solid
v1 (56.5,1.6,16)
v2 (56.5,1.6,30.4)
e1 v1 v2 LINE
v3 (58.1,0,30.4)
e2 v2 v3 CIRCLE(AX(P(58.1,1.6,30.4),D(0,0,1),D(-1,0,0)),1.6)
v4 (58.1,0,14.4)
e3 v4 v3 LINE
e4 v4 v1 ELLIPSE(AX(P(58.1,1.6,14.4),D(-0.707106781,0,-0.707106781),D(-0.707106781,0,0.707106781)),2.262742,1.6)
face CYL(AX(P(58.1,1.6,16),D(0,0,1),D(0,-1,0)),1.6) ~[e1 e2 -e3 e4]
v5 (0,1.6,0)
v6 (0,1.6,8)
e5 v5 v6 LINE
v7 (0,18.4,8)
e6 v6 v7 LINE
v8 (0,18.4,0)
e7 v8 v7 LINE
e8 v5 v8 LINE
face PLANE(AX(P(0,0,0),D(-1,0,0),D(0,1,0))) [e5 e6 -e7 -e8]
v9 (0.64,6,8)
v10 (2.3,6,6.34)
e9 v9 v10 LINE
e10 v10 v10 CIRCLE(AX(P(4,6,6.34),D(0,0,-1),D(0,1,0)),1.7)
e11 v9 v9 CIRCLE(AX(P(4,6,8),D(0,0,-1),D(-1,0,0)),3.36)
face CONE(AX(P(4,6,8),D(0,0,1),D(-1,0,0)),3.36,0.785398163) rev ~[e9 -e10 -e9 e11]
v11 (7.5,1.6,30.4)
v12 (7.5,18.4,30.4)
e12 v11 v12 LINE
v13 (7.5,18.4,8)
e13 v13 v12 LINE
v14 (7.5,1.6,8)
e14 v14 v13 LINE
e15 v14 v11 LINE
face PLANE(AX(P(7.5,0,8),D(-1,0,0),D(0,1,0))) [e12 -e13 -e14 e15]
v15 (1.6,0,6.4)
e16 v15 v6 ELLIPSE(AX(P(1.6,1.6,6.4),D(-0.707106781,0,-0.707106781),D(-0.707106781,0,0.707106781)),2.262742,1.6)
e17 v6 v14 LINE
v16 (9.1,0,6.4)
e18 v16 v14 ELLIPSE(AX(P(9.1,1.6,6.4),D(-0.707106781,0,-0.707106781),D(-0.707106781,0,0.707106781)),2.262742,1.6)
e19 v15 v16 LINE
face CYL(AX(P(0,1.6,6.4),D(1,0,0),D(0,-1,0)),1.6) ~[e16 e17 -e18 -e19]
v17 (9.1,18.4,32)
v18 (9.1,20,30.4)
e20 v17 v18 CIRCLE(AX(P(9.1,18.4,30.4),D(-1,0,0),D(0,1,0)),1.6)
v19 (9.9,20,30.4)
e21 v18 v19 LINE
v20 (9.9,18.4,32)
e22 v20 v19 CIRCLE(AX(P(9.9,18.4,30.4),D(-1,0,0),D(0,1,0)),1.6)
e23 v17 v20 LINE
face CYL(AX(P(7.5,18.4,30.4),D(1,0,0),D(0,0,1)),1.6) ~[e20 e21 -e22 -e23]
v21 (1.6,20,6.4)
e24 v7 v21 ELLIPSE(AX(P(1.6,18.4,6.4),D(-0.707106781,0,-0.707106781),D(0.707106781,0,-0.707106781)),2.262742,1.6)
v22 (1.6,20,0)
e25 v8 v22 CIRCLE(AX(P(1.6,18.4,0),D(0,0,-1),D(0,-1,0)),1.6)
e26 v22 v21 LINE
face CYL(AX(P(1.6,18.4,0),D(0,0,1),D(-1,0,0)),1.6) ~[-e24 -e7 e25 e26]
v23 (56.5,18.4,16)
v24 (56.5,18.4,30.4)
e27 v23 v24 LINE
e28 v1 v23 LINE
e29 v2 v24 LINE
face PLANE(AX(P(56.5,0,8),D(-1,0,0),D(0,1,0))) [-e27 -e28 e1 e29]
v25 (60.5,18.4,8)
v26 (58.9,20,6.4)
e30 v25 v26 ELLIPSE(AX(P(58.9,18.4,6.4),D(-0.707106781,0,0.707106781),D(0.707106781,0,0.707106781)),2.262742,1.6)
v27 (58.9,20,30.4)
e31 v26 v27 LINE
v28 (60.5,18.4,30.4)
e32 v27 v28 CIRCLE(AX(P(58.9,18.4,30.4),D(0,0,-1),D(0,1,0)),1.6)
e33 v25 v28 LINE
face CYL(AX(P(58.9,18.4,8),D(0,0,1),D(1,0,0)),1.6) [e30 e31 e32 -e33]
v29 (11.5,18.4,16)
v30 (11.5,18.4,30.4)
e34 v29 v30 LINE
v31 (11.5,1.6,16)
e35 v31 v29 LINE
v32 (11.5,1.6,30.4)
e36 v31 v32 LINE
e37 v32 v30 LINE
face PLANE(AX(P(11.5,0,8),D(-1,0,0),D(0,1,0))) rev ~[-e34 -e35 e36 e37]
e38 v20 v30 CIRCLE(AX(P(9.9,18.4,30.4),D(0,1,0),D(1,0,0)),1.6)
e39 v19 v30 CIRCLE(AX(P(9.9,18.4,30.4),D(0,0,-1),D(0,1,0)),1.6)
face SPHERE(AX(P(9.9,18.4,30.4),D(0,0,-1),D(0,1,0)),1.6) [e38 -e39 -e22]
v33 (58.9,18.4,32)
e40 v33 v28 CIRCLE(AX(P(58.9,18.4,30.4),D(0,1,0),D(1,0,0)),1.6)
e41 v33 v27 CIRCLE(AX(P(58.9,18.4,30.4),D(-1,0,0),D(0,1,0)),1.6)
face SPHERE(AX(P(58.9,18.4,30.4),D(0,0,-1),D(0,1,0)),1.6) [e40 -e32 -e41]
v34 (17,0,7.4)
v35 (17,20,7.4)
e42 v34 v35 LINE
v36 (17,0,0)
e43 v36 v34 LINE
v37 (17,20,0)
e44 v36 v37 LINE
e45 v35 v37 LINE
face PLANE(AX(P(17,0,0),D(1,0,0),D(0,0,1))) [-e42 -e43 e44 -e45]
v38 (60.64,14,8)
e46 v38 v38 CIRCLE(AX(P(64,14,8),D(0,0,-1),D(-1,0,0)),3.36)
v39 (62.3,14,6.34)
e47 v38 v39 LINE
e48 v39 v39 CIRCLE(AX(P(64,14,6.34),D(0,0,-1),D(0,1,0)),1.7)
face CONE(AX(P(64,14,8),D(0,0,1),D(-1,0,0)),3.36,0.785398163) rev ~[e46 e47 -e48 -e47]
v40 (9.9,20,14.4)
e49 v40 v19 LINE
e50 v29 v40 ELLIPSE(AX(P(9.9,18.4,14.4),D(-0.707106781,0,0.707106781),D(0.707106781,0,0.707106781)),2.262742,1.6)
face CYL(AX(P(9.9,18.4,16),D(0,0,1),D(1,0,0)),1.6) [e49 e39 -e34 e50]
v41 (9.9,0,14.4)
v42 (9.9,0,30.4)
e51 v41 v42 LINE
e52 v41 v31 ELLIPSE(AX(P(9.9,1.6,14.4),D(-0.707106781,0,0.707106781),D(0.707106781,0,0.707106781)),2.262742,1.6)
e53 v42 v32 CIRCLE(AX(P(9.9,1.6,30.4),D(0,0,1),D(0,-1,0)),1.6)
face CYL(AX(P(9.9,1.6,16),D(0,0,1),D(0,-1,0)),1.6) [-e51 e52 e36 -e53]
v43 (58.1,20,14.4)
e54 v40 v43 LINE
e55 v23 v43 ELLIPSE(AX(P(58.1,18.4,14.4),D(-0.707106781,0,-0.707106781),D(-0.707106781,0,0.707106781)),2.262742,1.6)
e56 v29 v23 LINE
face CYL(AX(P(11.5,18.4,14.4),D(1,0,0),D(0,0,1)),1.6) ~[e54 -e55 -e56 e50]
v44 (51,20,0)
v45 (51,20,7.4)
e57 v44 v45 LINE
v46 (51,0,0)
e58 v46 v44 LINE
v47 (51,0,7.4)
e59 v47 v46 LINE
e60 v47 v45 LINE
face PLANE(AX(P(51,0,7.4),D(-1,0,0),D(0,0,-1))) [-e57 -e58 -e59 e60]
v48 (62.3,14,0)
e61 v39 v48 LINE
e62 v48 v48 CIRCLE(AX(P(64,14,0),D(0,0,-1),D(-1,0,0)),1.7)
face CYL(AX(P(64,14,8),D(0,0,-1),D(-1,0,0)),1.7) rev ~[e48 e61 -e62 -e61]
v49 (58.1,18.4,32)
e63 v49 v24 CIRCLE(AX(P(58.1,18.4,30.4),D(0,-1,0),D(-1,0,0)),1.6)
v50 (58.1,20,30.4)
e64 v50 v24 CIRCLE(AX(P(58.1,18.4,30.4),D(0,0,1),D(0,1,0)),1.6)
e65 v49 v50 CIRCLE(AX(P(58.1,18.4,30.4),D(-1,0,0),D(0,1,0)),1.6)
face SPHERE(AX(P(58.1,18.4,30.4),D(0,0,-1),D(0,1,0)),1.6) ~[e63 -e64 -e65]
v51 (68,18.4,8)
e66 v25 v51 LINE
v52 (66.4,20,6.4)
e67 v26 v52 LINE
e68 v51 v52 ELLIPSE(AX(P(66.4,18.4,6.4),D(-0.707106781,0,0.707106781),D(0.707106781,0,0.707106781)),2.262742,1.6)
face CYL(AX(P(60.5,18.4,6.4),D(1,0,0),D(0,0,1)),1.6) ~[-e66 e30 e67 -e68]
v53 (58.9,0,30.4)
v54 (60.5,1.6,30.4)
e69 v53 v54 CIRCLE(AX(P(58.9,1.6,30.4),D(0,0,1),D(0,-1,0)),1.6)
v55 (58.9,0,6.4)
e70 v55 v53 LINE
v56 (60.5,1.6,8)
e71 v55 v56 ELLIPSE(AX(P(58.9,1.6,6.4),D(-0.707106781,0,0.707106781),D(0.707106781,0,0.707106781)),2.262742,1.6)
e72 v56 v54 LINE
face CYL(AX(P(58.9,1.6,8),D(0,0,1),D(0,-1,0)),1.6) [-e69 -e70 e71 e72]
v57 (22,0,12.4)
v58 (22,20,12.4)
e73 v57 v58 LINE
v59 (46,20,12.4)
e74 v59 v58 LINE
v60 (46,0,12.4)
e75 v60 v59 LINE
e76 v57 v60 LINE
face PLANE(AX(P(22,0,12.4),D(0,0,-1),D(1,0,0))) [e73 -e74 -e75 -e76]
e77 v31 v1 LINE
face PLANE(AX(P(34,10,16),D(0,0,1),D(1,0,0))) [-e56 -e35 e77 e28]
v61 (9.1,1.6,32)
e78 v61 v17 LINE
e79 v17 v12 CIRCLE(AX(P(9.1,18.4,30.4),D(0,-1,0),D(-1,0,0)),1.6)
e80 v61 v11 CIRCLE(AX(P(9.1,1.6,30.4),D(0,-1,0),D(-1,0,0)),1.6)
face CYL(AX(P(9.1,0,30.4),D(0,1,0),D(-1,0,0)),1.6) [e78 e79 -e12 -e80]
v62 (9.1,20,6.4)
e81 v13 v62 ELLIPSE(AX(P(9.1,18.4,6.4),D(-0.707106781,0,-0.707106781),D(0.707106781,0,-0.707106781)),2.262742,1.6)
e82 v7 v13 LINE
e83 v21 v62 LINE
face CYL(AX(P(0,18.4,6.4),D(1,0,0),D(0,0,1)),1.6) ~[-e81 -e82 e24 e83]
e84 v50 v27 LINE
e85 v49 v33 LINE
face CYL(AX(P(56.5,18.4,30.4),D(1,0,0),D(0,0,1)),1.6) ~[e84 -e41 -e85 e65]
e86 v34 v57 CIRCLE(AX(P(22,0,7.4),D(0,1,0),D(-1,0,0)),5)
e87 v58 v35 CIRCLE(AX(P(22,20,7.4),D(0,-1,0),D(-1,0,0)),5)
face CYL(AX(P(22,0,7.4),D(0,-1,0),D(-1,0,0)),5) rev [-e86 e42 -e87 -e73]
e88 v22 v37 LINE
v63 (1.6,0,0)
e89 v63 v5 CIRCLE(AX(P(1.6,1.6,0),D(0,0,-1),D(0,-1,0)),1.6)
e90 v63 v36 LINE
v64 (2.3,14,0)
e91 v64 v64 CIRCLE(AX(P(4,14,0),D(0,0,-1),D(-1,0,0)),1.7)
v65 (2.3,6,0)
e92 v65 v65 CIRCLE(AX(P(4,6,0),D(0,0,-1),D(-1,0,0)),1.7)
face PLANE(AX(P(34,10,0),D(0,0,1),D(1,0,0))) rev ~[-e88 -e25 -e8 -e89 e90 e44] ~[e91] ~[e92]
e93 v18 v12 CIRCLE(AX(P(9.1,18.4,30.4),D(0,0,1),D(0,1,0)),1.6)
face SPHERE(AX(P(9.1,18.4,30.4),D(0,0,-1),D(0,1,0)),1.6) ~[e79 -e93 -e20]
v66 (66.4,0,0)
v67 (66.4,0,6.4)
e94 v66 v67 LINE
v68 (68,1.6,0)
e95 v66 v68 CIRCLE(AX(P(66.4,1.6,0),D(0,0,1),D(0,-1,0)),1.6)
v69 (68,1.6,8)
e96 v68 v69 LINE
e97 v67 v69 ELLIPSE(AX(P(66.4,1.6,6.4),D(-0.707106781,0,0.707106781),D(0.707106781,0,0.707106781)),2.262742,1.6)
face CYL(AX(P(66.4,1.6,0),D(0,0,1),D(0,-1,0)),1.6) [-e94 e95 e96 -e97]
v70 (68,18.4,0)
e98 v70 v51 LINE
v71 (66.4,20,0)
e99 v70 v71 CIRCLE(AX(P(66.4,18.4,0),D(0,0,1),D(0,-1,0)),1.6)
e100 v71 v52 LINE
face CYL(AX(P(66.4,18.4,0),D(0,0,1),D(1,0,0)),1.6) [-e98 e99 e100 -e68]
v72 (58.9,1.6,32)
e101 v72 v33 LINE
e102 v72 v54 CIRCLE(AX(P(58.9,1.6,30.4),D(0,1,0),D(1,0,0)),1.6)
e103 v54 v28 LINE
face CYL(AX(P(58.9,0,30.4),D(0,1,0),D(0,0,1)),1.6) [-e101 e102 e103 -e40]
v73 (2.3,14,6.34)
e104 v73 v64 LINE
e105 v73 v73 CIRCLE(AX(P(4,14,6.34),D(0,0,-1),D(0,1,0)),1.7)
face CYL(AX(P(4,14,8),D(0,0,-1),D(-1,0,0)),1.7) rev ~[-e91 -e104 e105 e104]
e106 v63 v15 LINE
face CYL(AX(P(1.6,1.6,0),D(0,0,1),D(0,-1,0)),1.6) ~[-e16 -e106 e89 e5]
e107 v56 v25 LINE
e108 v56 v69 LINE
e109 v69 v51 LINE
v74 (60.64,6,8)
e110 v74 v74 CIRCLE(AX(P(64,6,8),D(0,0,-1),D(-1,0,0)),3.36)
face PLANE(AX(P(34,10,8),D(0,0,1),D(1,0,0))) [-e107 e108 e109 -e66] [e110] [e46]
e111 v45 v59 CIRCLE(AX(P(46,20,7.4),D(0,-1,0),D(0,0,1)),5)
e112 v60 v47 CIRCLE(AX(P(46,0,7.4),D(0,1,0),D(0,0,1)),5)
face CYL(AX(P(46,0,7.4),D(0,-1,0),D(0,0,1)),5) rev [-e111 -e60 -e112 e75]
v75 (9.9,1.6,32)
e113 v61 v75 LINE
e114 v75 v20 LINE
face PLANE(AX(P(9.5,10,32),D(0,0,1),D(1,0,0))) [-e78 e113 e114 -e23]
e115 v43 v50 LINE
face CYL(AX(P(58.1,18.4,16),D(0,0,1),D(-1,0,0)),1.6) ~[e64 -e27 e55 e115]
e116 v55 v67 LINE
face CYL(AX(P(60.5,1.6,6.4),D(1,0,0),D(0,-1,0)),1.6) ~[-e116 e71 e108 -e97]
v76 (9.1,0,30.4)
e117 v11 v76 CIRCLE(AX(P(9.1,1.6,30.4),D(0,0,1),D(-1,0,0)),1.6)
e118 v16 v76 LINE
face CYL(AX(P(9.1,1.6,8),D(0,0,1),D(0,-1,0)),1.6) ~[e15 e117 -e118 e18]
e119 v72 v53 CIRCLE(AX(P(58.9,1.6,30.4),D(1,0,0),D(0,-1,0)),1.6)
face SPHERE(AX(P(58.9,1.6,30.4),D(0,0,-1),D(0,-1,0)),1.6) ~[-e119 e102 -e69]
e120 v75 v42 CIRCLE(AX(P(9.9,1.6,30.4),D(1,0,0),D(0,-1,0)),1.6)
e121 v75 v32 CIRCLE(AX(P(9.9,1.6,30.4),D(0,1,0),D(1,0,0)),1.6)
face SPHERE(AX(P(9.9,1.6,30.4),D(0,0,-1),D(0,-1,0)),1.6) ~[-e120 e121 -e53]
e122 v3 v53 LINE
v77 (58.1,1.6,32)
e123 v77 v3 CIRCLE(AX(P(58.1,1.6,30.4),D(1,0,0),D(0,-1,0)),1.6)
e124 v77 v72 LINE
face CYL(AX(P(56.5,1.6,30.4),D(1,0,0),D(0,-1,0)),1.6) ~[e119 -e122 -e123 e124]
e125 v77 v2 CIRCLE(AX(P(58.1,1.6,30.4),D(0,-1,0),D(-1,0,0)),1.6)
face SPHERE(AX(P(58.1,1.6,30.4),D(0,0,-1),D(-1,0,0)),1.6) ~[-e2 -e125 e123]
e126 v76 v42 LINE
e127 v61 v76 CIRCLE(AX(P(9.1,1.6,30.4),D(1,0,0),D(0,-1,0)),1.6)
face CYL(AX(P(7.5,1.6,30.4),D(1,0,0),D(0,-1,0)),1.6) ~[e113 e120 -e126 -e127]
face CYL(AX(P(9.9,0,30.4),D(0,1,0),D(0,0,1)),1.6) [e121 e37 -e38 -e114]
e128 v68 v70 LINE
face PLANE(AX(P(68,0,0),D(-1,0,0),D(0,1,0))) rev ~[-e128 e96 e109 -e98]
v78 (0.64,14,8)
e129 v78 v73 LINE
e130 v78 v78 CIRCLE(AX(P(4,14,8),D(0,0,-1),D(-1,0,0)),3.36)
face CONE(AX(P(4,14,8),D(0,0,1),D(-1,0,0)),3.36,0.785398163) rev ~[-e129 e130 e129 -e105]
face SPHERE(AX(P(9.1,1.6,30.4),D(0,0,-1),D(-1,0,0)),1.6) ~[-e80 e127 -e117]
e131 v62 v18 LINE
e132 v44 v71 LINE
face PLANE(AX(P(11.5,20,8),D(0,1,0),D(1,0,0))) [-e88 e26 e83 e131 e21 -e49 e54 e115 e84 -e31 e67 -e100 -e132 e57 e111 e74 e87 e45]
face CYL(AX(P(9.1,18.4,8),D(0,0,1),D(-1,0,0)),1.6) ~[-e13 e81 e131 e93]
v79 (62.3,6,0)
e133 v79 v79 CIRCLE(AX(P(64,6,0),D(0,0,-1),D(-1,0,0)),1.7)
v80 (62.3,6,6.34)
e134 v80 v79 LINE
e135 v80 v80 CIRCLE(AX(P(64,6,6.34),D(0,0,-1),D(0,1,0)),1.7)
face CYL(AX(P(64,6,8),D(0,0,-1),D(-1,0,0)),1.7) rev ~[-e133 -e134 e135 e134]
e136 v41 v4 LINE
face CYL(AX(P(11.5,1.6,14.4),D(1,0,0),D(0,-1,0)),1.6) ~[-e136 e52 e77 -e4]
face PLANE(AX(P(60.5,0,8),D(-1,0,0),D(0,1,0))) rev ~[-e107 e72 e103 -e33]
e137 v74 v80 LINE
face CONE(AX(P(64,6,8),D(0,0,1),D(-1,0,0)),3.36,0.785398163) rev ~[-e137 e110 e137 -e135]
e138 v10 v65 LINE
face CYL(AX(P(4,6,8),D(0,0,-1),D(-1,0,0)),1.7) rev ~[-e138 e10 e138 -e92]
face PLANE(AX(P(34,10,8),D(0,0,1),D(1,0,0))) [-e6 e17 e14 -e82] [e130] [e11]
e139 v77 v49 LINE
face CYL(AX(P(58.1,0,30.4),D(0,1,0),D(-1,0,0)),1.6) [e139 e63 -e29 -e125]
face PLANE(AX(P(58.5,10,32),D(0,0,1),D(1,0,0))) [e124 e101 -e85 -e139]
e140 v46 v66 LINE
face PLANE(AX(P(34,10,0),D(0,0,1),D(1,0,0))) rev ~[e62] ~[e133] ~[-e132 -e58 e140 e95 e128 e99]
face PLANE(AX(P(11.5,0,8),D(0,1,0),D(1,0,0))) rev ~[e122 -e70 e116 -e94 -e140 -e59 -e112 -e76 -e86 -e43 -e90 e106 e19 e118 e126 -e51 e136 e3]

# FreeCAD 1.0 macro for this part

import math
import FreeCAD as App
import Part
import Sketcher

V = App.Vector
Q = App.Units.Quantity


def edges_at(feature, points):
    """Names of the edges that pass closest to the given points."""
    edges = feature.Shape.Edges
    near = lambda p: min(range(len(edges)), key=lambda i: edges[i].distToShape(Part.Vertex(*p))[0])
    return sorted({f"Edge{near(p) + 1}" for p in points})

doc = App.newDocument("Part")
params = doc.addObject("Spreadsheet::Sheet", "Params")
for row, (alias, value) in enumerate([
    ("sketch1_width", "68 mm"),
    ("sketch1_height", "20 mm"),
    ("pad1_length", "8 mm"),
    ("sketch2_diameter", "3.4 mm"),
    ("hole_diameter", "3.4 mm"),
    ("hole_csink_diameter", "6.72 mm"),
    ("sketch3_width", "4 mm"),
    ("sketch3_height", "20 mm"),
    ("pad2_length", "24 mm"),
    ("sketch4_width", "45 mm"),
    ("sketch4_height", "20 mm"),
    ("pad3_length", "8 mm"),
    ("fillet_radius", "1.6 mm"),
    ("sketch5_radius", "5 mm"),
    ("sketch5_width", "34 mm"),
    ("sketch5_height", "7.4 mm"),
], start=1):
    params.set(f"A{row}", alias)
    params.set(f"B{row}", "=" + value)
    params.setAlias(f"B{row}", alias)

body = doc.addObject("PartDesign::Body", "Body")

sketch1 = body.newObject("Sketcher::SketchObject", "Sketch")
sketch1.AttachmentSupport = (doc.getObject("XY_Plane"), [""])
sketch1.MapMode = "FlatFace"
sketch1.addGeometry([
    Part.LineSegment(V(0, 20, 0), V(0, 0, 0)),
    Part.LineSegment(V(0, 0, 0), V(68, 0, 0)),
    Part.LineSegment(V(68, 0, 0), V(68, 20, 0)),
    Part.LineSegment(V(68, 20, 0), V(0, 20, 0)),
], False)
sketch1.addConstraint([
    Sketcher.Constraint("Coincident", 0, 2, 1, 1),
    Sketcher.Constraint("Coincident", 1, 2, 2, 1),
    Sketcher.Constraint("Coincident", 2, 2, 3, 1),
    Sketcher.Constraint("Coincident", 3, 2, 0, 1),
    Sketcher.Constraint("Vertical", 0),
    Sketcher.Constraint("Horizontal", 1),
    Sketcher.Constraint("Vertical", 2),
    Sketcher.Constraint("Horizontal", 3),
    Sketcher.Constraint("Coincident", 0, 2, -1, 1),
    Sketcher.Constraint("DistanceX", 1, 1, 1, 2, Q("68 mm")),
    Sketcher.Constraint("DistanceY", 0, 2, 0, 1, Q("20 mm")),
])
sketch1.setExpression("Constraints[9]", "Params.sketch1_width")
sketch1.setExpression("Constraints[10]", "Params.sketch1_height")
pad1 = body.newObject("PartDesign::Pad", "Pad")
pad1.Profile = sketch1
pad1.setExpression("Length", "Params.pad1_length")

sketch2 = body.newObject("Sketcher::SketchObject", "Sketch001")
sketch2.AttachmentSupport = (doc.getObject("XY_Plane"), [""])
sketch2.MapMode = "FlatFace"
sketch2.AttachmentOffset = App.Placement(V(0, 0, 8), App.Rotation())
sketch2.addGeometry([
    Part.Circle(V(4, 14, 0), V(0, 0, 1), 1.7),
    Part.Circle(V(4, 6, 0), V(0, 0, 1), 1.7),
    Part.Circle(V(64, 14, 0), V(0, 0, 1), 1.7),
    Part.Circle(V(64, 6, 0), V(0, 0, 1), 1.7),
], False)
sketch2.addConstraint([
    Sketcher.Constraint("Equal", 0, 1),
    Sketcher.Constraint("Equal", 1, 2),
    Sketcher.Constraint("Equal", 2, 3),
    Sketcher.Constraint("Horizontal", 0, 3, 2, 3),
    Sketcher.Constraint("Horizontal", 1, 3, 3, 3),
    Sketcher.Constraint("Vertical", 0, 3, 1, 3),
    Sketcher.Constraint("Vertical", 2, 3, 3, 3),
    Sketcher.Constraint("Diameter", 0, Q("3.4 mm")),
    Sketcher.Constraint("DistanceX", -1, 1, 0, 3, Q("4 mm")),
    Sketcher.Constraint("DistanceY", -1, 1, 0, 3, Q("14 mm")),
    Sketcher.Constraint("DistanceY", -1, 1, 1, 3, Q("6 mm")),
    Sketcher.Constraint("DistanceX", -1, 1, 2, 3, Q("64 mm")),
])
sketch2.setExpression("Constraints[7]", "Params.sketch2_diameter")
doc.recompute()
hole = body.newObject("PartDesign::Hole", "Hole")
hole.Profile = sketch2
hole.ThreadType = "None"
hole.setExpression("Diameter", "Params.hole_diameter")
hole.DepthType = "ThroughAll"
hole.HoleCutType = "Countersink"
hole.setExpression("HoleCutDiameter", "Params.hole_csink_diameter")
hole.HoleCutCountersinkAngle = 90

sketch3 = body.newObject("Sketcher::SketchObject", "Sketch002")
sketch3.AttachmentSupport = (doc.getObject("XY_Plane"), [""])
sketch3.MapMode = "FlatFace"
sketch3.AttachmentOffset = App.Placement(V(0, 0, 8), App.Rotation())
sketch3.addGeometry([
    Part.LineSegment(V(7.5, 20, 0), V(7.5, 0, 0)),
    Part.LineSegment(V(7.5, 0, 0), V(11.5, 0, 0)),
    Part.LineSegment(V(11.5, 0, 0), V(11.5, 20, 0)),
    Part.LineSegment(V(11.5, 20, 0), V(7.5, 20, 0)),
    Part.LineSegment(V(56.5, 20, 0), V(56.5, 0, 0)),
    Part.LineSegment(V(56.5, 0, 0), V(60.5, 0, 0)),
    Part.LineSegment(V(60.5, 0, 0), V(60.5, 20, 0)),
    Part.LineSegment(V(60.5, 20, 0), V(56.5, 20, 0)),
], False)
sketch3.addConstraint([
    Sketcher.Constraint("Coincident", 0, 2, 1, 1),
    Sketcher.Constraint("Coincident", 1, 2, 2, 1),
    Sketcher.Constraint("Coincident", 2, 2, 3, 1),
    Sketcher.Constraint("Coincident", 3, 2, 0, 1),
    Sketcher.Constraint("Coincident", 4, 2, 5, 1),
    Sketcher.Constraint("Coincident", 5, 2, 6, 1),
    Sketcher.Constraint("Coincident", 6, 2, 7, 1),
    Sketcher.Constraint("Coincident", 7, 2, 4, 1),
    Sketcher.Constraint("Vertical", 0),
    Sketcher.Constraint("Horizontal", 1),
    Sketcher.Constraint("Vertical", 2),
    Sketcher.Constraint("Horizontal", 3),
    Sketcher.Constraint("Vertical", 4),
    Sketcher.Constraint("Horizontal", 5),
    Sketcher.Constraint("Vertical", 6),
    Sketcher.Constraint("Horizontal", 7),
    Sketcher.Constraint("PointOnObject", 0, 2, -1),
    Sketcher.Constraint("PointOnObject", 4, 2, -1),
    Sketcher.Constraint("Horizontal", 3, 2, 6, 2),
    Sketcher.Constraint("Equal", 3, 5),
    Sketcher.Constraint("DistanceX", 1, 1, 1, 2, Q("4 mm")),
    Sketcher.Constraint("DistanceY", 0, 2, 0, 1, Q("20 mm")),
    Sketcher.Constraint("DistanceX", 1, 2, 4, 2, Q("45 mm")),
    Sketcher.Constraint("DistanceX", -1, 1, 0, 2, Q("7.5 mm")),
])
sketch3.setExpression("Constraints[20]", "Params.sketch3_width")
sketch3.setExpression("Constraints[21]", "Params.sketch3_height")
pad2 = body.newObject("PartDesign::Pad", "Pad001")
pad2.Profile = sketch3
pad2.setExpression("Length", "Params.pad2_length")

sketch4 = body.newObject("Sketcher::SketchObject", "Sketch003")
sketch4.AttachmentSupport = (doc.getObject("XY_Plane"), [""])
sketch4.MapMode = "FlatFace"
sketch4.AttachmentOffset = App.Placement(V(0, 0, 8), App.Rotation())
sketch4.addGeometry([
    Part.LineSegment(V(11.5, 20, 0), V(11.5, 0, 0)),
    Part.LineSegment(V(11.5, 0, 0), V(56.5, 0, 0)),
    Part.LineSegment(V(56.5, 0, 0), V(56.5, 20, 0)),
    Part.LineSegment(V(56.5, 20, 0), V(11.5, 20, 0)),
], False)
sketch4.addConstraint([
    Sketcher.Constraint("Coincident", 0, 2, 1, 1),
    Sketcher.Constraint("Coincident", 1, 2, 2, 1),
    Sketcher.Constraint("Coincident", 2, 2, 3, 1),
    Sketcher.Constraint("Coincident", 3, 2, 0, 1),
    Sketcher.Constraint("Vertical", 0),
    Sketcher.Constraint("Horizontal", 1),
    Sketcher.Constraint("Vertical", 2),
    Sketcher.Constraint("Horizontal", 3),
    Sketcher.Constraint("PointOnObject", 0, 2, -1),
    Sketcher.Constraint("DistanceX", 1, 1, 1, 2, Q("45 mm")),
    Sketcher.Constraint("DistanceY", 0, 2, 0, 1, Q("20 mm")),
    Sketcher.Constraint("DistanceX", -1, 1, 0, 2, Q("11.5 mm")),
])
sketch4.setExpression("Constraints[9]", "Params.sketch4_width")
sketch4.setExpression("Constraints[10]", "Params.sketch4_height")
pad3 = body.newObject("PartDesign::Pad", "Pad002")
pad3.Profile = sketch4
pad3.setExpression("Length", "Params.pad3_length")
doc.recompute()

fillet = body.newObject("PartDesign::Fillet", "Fillet")
fillet.Base = (pad3, edges_at(pad3, [
    (64.25, 20, 8),
    (64.25, 0, 8),
    (60.5, 20, 20),
    (56.5, 20, 24),
    (56.5, 0, 24),
    (60.5, 0, 20),
    (58.5, 20, 32),
    (56.5, 10, 32),
    (58.5, 0, 32),
    (60.5, 10, 32),
    (3.75, 20, 8),
    (11.5, 20, 24),
    (7.5, 20, 20),
    (7.5, 0, 20),
    (11.5, 0, 24),
    (9.5, 20, 32),
    (7.5, 10, 32),
    (9.5, 0, 32),
    (11.5, 10, 32),
    (34, 20, 16),
    (34, 0, 16),
    (0, 20, 4),
    (68, 20, 4),
    (68, 0, 4),
    (0, 0, 4),
    (3.75, 0, 8),
]))
fillet.setExpression("Radius", "Params.fillet_radius")

sketch5 = body.newObject("Sketcher::SketchObject", "Sketch004")
sketch5.AttachmentSupport = (doc.getObject("XZ_Plane"), [""])
sketch5.MapMode = "FlatFace"
sketch5.addGeometry([
    Part.ArcOfCircle(Part.Circle(V(22, 7.4, 0), V(0, 0, 1), 5), math.radians(90), math.radians(180)),
    Part.LineSegment(V(17, 7.4, 0), V(17, 0, 0)),
    Part.LineSegment(V(17, 0, 0), V(51, 0, 0)),
    Part.LineSegment(V(51, 0, 0), V(51, 7.4, 0)),
    Part.ArcOfCircle(Part.Circle(V(46, 7.4, 0), V(0, 0, 1), 5), math.radians(0), math.radians(90)),
    Part.LineSegment(V(46, 12.4, 0), V(22, 12.4, 0)),
], False)
sketch5.addConstraint([
    Sketcher.Constraint("Tangent", 0, 2, 1, 1),
    Sketcher.Constraint("Coincident", 1, 2, 2, 1),
    Sketcher.Constraint("Coincident", 2, 2, 3, 1),
    Sketcher.Constraint("Tangent", 3, 2, 4, 1),
    Sketcher.Constraint("Tangent", 4, 2, 5, 1),
    Sketcher.Constraint("Tangent", 5, 2, 0, 1),
    Sketcher.Constraint("Vertical", 1),
    Sketcher.Constraint("Horizontal", 2),
    Sketcher.Constraint("Vertical", 3),
    Sketcher.Constraint("Horizontal", 5),
    Sketcher.Constraint("Equal", 0, 4),
    Sketcher.Constraint("PointOnObject", 1, 2, -1),
    Sketcher.Constraint("Radius", 0, Q("5 mm")),
    Sketcher.Constraint("DistanceX", 2, 1, 2, 2, Q("34 mm")),
    Sketcher.Constraint("DistanceY", 1, 2, 1, 1, Q("7.4 mm")),
    Sketcher.Constraint("DistanceX", -1, 1, 0, 3, Q("22 mm")),
])
sketch5.setExpression("Constraints[12]", "Params.sketch5_radius")
sketch5.setExpression("Constraints[13]", "Params.sketch5_width")
sketch5.setExpression("Constraints[14]", "Params.sketch5_height")
pocket1 = body.newObject("PartDesign::Pocket", "Pocket")
pocket1.Profile = sketch5
pocket1.Type = "ThroughAll"

doc.recompute()
